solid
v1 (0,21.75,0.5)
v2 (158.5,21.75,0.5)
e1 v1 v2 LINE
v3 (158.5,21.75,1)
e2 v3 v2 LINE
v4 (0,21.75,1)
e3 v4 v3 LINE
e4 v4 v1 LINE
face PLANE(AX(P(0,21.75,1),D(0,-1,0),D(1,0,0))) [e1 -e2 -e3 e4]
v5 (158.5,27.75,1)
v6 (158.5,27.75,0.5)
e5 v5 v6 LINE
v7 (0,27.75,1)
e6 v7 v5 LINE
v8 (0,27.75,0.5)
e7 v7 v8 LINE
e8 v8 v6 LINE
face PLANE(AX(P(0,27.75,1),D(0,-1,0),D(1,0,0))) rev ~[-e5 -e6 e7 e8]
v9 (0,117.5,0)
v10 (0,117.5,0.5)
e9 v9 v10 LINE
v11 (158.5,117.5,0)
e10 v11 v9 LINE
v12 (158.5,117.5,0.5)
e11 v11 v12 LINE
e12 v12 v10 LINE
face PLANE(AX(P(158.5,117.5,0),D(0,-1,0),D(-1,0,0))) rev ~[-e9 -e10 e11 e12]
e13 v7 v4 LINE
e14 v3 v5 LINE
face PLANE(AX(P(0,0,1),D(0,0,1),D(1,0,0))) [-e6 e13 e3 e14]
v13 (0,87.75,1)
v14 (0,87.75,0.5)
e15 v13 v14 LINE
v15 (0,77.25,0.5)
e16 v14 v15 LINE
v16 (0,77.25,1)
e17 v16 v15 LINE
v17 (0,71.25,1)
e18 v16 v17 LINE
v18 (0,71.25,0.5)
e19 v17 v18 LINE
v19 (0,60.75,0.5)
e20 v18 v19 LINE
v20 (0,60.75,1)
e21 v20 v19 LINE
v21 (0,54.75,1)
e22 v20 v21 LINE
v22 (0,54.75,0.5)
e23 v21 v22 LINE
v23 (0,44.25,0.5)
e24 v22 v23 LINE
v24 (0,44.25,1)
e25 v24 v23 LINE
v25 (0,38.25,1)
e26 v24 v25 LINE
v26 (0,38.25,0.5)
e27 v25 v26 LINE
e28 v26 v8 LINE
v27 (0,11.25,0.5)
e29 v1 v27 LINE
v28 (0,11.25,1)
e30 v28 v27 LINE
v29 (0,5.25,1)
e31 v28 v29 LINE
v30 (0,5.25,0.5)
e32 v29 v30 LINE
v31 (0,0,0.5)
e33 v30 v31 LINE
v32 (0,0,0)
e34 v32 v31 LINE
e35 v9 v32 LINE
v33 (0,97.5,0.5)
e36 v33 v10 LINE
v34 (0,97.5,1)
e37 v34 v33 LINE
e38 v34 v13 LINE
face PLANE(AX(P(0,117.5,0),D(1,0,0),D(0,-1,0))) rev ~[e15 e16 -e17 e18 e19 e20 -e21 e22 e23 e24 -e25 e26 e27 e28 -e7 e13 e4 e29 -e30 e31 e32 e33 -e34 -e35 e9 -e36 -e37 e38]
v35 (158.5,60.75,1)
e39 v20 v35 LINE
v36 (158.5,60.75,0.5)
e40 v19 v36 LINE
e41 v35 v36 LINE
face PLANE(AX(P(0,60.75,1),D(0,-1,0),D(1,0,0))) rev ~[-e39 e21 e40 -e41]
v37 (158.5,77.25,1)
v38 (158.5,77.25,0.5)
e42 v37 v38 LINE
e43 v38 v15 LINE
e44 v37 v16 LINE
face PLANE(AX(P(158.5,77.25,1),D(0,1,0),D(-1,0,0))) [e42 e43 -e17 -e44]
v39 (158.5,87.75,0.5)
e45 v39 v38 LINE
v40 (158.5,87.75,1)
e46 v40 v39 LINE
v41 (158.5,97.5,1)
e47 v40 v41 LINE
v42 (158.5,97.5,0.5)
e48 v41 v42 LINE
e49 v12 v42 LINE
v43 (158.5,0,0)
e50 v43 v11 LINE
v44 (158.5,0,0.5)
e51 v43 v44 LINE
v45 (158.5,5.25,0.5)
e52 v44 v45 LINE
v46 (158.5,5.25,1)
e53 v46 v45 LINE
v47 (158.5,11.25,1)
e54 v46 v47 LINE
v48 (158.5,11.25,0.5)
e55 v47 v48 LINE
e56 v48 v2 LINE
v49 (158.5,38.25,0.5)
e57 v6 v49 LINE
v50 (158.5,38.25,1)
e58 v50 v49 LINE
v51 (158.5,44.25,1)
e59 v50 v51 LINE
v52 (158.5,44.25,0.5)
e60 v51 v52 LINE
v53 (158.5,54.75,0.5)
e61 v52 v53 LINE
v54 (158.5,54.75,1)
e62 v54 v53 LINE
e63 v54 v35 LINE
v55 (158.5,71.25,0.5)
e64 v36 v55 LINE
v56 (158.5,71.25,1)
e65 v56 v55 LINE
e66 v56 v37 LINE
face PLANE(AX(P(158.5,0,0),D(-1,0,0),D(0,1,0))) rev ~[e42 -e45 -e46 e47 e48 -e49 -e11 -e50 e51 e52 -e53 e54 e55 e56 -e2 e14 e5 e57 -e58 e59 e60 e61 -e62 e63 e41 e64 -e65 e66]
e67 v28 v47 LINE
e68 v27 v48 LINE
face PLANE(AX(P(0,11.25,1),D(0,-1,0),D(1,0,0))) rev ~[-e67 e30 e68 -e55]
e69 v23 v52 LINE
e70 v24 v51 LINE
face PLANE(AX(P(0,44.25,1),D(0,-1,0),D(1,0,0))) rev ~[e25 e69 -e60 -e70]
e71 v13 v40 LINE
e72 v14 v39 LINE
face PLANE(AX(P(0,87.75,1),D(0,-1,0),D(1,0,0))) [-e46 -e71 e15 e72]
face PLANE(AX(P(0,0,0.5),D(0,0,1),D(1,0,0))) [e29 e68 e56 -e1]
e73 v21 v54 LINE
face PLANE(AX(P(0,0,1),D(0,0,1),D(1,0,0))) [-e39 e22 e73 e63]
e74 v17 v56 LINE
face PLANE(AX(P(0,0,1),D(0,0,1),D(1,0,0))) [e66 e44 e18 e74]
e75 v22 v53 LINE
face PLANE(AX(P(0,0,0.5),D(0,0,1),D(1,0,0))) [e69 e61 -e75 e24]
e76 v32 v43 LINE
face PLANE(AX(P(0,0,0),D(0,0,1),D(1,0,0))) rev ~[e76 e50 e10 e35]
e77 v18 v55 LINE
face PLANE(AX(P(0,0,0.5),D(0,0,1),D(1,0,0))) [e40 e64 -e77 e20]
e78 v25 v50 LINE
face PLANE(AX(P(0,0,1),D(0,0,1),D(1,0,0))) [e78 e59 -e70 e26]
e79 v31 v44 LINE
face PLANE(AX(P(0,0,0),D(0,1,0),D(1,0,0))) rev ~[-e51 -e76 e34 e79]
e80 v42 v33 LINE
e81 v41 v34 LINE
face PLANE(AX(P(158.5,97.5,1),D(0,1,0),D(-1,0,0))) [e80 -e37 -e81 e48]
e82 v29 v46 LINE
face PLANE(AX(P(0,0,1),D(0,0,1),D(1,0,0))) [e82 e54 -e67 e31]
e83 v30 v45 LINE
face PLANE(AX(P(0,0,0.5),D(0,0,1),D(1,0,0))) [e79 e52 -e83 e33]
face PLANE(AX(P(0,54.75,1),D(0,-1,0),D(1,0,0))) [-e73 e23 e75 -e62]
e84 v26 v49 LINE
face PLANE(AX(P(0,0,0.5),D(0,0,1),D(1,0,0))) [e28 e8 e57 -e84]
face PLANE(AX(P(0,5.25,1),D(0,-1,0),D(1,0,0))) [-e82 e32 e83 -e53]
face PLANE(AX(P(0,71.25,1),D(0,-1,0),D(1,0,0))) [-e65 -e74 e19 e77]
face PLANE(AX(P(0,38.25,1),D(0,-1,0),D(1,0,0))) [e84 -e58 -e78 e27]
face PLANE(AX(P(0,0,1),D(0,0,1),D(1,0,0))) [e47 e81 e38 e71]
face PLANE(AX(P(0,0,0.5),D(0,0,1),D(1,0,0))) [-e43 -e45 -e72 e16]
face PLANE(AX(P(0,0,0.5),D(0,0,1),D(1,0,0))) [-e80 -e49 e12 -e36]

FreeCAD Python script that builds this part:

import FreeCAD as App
import Part
import Sketcher


def add_polygon(sketch, points):
    """Adds a closed chain of lines whose ends are joined by coincident constraints."""
    first, n = sketch.GeometryCount, len(points)
    for a, b in zip(points, points[1:] + points[:1]):
        sketch.addGeometry(Part.LineSegment(App.Vector(*a, 0), App.Vector(*b, 0)), False)
    for i in range(n):
        sketch.addConstraint(Sketcher.Constraint("Coincident", first + i, 2, first + (i + 1) % n, 1))

doc = App.newDocument("Part")
body = doc.addObject("PartDesign::Body", "Body")

# Sketch on XY plane
sketch1 = body.newObject("Sketcher::SketchObject", "Sketch")
sketch1.AttachmentSupport = (doc.getObject("XY_Plane"), [""])
sketch1.MapMode = "FlatFace"
add_polygon(sketch1, [(0, 117.5), (0, 0), (158.5, 0), (158.5, 117.5)])  # lines 0-3
sketch1.addConstraint([
    Sketcher.Constraint("Vertical", 0),
    Sketcher.Constraint("Horizontal", 1),
    Sketcher.Constraint("Vertical", 2),
    Sketcher.Constraint("Horizontal", 3),
    Sketcher.Constraint("Coincident", 0, 2, -1, 1),
    Sketcher.Constraint("DistanceX", 1, 1, 1, 2, 158.5),
    Sketcher.Constraint("DistanceY", 0, 2, 0, 1, 117.5),
])
pad1 = body.newObject("PartDesign::Pad", "Pad")
pad1.Profile = sketch1
pad1.Length = 1

# Sketch on XY plane
sketch2 = body.newObject("Sketcher::SketchObject", "Sketch001")
sketch2.AttachmentSupport = (doc.getObject("XY_Plane"), [""])
sketch2.MapMode = "FlatFace"
sketch2.AttachmentOffset = App.Placement(App.Vector(0, 0, 1), App.Rotation())
add_polygon(sketch2, [(158.5, 97.5), (158.5, 117.5), (0, 117.5), (0, 97.5)])  # lines 0-3
add_polygon(sketch2, [(158.5, 77.25), (158.5, 87.75), (0, 87.75), (0, 77.25)])  # lines 4-7
add_polygon(sketch2, [(158.5, 60.75), (158.5, 71.25), (0, 71.25), (0, 60.75)])  # lines 8-11
add_polygon(sketch2, [(158.5, 44.25), (158.5, 54.75), (0, 54.75), (0, 44.25)])  # lines 12-15
add_polygon(sketch2, [(158.5, 27.75), (158.5, 38.25), (0, 38.25), (0, 27.75)])  # lines 16-19
add_polygon(sketch2, [(158.5, 11.25), (158.5, 21.75), (0, 21.75), (0, 11.25)])  # lines 20-23
add_polygon(sketch2, [(158.5, 0), (158.5, 5.25), (0, 5.25), (0, 0)])  # lines 24-27
sketch2.addConstraint([
    Sketcher.Constraint("Vertical", 0),
    Sketcher.Constraint("Horizontal", 1),
    Sketcher.Constraint("Vertical", 2),
    Sketcher.Constraint("Horizontal", 3),
    Sketcher.Constraint("Vertical", 4),
    Sketcher.Constraint("Horizontal", 5),
    Sketcher.Constraint("Vertical", 6),
    Sketcher.Constraint("Horizontal", 7),
    Sketcher.Constraint("Vertical", 8),
    Sketcher.Constraint("Horizontal", 9),
    Sketcher.Constraint("Vertical", 10),
    Sketcher.Constraint("Horizontal", 11),
    Sketcher.Constraint("Vertical", 12),
    Sketcher.Constraint("Horizontal", 13),
    Sketcher.Constraint("Vertical", 14),
    Sketcher.Constraint("Horizontal", 15),
    Sketcher.Constraint("Vertical", 16),
    Sketcher.Constraint("Horizontal", 17),
    Sketcher.Constraint("Vertical", 18),
    Sketcher.Constraint("Horizontal", 19),
    Sketcher.Constraint("Vertical", 20),
    Sketcher.Constraint("Horizontal", 21),
    Sketcher.Constraint("Vertical", 22),
    Sketcher.Constraint("Horizontal", 23),
    Sketcher.Constraint("Vertical", 24),
    Sketcher.Constraint("Horizontal", 25),
    Sketcher.Constraint("Vertical", 26),
    Sketcher.Constraint("Horizontal", 27),
    Sketcher.Constraint("Coincident", 26, 2, -1, 1),
    Sketcher.Constraint("PointOnObject", 1, 2, -2),
    Sketcher.Constraint("PointOnObject", 5, 2, -2),
    Sketcher.Constraint("PointOnObject", 9, 2, -2),
    Sketcher.Constraint("PointOnObject", 13, 2, -2),
    Sketcher.Constraint("PointOnObject", 17, 2, -2),
    Sketcher.Constraint("PointOnObject", 21, 2, -2),
    Sketcher.Constraint("Vertical", 3, 2, 4, 2),
    Sketcher.Constraint("Vertical", 7, 2, 8, 2),
    Sketcher.Constraint("Vertical", 11, 2, 12, 2),
    Sketcher.Constraint("Vertical", 15, 2, 16, 2),
    Sketcher.Constraint("Vertical", 19, 2, 20, 2),
    Sketcher.Constraint("Vertical", 23, 2, 24, 2),
    Sketcher.Constraint("Equal", 6, 8),
    Sketcher.Constraint("Equal", 10, 12),
    Sketcher.Constraint("Equal", 14, 16),
    Sketcher.Constraint("Equal", 18, 20),
    Sketcher.Constraint("DistanceY", 0, 1, 0, 2, 20.0),
    Sketcher.Constraint("DistanceY", 4, 1, 4, 2, 10.5),
    Sketcher.Constraint("DistanceY", 8, 2, 7, 2, 6.0),
    Sketcher.Constraint("DistanceY", 12, 2, 11, 2, 6.0),
    Sketcher.Constraint("DistanceY", 16, 2, 15, 2, 6.0),
    Sketcher.Constraint("DistanceY", 20, 2, 19, 2, 6.0),
    Sketcher.Constraint("DistanceY", 24, 2, 23, 2, 6.0),
    Sketcher.Constraint("DistanceY", 24, 1, 24, 2, 5.25),
    Sketcher.Constraint("DistanceY", 4, 2, 3, 2, 9.75),
    Sketcher.Constraint("DistanceX", 1, 2, 1, 1, 158.5),
])
pocket1 = body.newObject("PartDesign::Pocket", "Pocket")
pocket1.Profile = sketch2
pocket1.Length = 0.5

doc.recompute()
